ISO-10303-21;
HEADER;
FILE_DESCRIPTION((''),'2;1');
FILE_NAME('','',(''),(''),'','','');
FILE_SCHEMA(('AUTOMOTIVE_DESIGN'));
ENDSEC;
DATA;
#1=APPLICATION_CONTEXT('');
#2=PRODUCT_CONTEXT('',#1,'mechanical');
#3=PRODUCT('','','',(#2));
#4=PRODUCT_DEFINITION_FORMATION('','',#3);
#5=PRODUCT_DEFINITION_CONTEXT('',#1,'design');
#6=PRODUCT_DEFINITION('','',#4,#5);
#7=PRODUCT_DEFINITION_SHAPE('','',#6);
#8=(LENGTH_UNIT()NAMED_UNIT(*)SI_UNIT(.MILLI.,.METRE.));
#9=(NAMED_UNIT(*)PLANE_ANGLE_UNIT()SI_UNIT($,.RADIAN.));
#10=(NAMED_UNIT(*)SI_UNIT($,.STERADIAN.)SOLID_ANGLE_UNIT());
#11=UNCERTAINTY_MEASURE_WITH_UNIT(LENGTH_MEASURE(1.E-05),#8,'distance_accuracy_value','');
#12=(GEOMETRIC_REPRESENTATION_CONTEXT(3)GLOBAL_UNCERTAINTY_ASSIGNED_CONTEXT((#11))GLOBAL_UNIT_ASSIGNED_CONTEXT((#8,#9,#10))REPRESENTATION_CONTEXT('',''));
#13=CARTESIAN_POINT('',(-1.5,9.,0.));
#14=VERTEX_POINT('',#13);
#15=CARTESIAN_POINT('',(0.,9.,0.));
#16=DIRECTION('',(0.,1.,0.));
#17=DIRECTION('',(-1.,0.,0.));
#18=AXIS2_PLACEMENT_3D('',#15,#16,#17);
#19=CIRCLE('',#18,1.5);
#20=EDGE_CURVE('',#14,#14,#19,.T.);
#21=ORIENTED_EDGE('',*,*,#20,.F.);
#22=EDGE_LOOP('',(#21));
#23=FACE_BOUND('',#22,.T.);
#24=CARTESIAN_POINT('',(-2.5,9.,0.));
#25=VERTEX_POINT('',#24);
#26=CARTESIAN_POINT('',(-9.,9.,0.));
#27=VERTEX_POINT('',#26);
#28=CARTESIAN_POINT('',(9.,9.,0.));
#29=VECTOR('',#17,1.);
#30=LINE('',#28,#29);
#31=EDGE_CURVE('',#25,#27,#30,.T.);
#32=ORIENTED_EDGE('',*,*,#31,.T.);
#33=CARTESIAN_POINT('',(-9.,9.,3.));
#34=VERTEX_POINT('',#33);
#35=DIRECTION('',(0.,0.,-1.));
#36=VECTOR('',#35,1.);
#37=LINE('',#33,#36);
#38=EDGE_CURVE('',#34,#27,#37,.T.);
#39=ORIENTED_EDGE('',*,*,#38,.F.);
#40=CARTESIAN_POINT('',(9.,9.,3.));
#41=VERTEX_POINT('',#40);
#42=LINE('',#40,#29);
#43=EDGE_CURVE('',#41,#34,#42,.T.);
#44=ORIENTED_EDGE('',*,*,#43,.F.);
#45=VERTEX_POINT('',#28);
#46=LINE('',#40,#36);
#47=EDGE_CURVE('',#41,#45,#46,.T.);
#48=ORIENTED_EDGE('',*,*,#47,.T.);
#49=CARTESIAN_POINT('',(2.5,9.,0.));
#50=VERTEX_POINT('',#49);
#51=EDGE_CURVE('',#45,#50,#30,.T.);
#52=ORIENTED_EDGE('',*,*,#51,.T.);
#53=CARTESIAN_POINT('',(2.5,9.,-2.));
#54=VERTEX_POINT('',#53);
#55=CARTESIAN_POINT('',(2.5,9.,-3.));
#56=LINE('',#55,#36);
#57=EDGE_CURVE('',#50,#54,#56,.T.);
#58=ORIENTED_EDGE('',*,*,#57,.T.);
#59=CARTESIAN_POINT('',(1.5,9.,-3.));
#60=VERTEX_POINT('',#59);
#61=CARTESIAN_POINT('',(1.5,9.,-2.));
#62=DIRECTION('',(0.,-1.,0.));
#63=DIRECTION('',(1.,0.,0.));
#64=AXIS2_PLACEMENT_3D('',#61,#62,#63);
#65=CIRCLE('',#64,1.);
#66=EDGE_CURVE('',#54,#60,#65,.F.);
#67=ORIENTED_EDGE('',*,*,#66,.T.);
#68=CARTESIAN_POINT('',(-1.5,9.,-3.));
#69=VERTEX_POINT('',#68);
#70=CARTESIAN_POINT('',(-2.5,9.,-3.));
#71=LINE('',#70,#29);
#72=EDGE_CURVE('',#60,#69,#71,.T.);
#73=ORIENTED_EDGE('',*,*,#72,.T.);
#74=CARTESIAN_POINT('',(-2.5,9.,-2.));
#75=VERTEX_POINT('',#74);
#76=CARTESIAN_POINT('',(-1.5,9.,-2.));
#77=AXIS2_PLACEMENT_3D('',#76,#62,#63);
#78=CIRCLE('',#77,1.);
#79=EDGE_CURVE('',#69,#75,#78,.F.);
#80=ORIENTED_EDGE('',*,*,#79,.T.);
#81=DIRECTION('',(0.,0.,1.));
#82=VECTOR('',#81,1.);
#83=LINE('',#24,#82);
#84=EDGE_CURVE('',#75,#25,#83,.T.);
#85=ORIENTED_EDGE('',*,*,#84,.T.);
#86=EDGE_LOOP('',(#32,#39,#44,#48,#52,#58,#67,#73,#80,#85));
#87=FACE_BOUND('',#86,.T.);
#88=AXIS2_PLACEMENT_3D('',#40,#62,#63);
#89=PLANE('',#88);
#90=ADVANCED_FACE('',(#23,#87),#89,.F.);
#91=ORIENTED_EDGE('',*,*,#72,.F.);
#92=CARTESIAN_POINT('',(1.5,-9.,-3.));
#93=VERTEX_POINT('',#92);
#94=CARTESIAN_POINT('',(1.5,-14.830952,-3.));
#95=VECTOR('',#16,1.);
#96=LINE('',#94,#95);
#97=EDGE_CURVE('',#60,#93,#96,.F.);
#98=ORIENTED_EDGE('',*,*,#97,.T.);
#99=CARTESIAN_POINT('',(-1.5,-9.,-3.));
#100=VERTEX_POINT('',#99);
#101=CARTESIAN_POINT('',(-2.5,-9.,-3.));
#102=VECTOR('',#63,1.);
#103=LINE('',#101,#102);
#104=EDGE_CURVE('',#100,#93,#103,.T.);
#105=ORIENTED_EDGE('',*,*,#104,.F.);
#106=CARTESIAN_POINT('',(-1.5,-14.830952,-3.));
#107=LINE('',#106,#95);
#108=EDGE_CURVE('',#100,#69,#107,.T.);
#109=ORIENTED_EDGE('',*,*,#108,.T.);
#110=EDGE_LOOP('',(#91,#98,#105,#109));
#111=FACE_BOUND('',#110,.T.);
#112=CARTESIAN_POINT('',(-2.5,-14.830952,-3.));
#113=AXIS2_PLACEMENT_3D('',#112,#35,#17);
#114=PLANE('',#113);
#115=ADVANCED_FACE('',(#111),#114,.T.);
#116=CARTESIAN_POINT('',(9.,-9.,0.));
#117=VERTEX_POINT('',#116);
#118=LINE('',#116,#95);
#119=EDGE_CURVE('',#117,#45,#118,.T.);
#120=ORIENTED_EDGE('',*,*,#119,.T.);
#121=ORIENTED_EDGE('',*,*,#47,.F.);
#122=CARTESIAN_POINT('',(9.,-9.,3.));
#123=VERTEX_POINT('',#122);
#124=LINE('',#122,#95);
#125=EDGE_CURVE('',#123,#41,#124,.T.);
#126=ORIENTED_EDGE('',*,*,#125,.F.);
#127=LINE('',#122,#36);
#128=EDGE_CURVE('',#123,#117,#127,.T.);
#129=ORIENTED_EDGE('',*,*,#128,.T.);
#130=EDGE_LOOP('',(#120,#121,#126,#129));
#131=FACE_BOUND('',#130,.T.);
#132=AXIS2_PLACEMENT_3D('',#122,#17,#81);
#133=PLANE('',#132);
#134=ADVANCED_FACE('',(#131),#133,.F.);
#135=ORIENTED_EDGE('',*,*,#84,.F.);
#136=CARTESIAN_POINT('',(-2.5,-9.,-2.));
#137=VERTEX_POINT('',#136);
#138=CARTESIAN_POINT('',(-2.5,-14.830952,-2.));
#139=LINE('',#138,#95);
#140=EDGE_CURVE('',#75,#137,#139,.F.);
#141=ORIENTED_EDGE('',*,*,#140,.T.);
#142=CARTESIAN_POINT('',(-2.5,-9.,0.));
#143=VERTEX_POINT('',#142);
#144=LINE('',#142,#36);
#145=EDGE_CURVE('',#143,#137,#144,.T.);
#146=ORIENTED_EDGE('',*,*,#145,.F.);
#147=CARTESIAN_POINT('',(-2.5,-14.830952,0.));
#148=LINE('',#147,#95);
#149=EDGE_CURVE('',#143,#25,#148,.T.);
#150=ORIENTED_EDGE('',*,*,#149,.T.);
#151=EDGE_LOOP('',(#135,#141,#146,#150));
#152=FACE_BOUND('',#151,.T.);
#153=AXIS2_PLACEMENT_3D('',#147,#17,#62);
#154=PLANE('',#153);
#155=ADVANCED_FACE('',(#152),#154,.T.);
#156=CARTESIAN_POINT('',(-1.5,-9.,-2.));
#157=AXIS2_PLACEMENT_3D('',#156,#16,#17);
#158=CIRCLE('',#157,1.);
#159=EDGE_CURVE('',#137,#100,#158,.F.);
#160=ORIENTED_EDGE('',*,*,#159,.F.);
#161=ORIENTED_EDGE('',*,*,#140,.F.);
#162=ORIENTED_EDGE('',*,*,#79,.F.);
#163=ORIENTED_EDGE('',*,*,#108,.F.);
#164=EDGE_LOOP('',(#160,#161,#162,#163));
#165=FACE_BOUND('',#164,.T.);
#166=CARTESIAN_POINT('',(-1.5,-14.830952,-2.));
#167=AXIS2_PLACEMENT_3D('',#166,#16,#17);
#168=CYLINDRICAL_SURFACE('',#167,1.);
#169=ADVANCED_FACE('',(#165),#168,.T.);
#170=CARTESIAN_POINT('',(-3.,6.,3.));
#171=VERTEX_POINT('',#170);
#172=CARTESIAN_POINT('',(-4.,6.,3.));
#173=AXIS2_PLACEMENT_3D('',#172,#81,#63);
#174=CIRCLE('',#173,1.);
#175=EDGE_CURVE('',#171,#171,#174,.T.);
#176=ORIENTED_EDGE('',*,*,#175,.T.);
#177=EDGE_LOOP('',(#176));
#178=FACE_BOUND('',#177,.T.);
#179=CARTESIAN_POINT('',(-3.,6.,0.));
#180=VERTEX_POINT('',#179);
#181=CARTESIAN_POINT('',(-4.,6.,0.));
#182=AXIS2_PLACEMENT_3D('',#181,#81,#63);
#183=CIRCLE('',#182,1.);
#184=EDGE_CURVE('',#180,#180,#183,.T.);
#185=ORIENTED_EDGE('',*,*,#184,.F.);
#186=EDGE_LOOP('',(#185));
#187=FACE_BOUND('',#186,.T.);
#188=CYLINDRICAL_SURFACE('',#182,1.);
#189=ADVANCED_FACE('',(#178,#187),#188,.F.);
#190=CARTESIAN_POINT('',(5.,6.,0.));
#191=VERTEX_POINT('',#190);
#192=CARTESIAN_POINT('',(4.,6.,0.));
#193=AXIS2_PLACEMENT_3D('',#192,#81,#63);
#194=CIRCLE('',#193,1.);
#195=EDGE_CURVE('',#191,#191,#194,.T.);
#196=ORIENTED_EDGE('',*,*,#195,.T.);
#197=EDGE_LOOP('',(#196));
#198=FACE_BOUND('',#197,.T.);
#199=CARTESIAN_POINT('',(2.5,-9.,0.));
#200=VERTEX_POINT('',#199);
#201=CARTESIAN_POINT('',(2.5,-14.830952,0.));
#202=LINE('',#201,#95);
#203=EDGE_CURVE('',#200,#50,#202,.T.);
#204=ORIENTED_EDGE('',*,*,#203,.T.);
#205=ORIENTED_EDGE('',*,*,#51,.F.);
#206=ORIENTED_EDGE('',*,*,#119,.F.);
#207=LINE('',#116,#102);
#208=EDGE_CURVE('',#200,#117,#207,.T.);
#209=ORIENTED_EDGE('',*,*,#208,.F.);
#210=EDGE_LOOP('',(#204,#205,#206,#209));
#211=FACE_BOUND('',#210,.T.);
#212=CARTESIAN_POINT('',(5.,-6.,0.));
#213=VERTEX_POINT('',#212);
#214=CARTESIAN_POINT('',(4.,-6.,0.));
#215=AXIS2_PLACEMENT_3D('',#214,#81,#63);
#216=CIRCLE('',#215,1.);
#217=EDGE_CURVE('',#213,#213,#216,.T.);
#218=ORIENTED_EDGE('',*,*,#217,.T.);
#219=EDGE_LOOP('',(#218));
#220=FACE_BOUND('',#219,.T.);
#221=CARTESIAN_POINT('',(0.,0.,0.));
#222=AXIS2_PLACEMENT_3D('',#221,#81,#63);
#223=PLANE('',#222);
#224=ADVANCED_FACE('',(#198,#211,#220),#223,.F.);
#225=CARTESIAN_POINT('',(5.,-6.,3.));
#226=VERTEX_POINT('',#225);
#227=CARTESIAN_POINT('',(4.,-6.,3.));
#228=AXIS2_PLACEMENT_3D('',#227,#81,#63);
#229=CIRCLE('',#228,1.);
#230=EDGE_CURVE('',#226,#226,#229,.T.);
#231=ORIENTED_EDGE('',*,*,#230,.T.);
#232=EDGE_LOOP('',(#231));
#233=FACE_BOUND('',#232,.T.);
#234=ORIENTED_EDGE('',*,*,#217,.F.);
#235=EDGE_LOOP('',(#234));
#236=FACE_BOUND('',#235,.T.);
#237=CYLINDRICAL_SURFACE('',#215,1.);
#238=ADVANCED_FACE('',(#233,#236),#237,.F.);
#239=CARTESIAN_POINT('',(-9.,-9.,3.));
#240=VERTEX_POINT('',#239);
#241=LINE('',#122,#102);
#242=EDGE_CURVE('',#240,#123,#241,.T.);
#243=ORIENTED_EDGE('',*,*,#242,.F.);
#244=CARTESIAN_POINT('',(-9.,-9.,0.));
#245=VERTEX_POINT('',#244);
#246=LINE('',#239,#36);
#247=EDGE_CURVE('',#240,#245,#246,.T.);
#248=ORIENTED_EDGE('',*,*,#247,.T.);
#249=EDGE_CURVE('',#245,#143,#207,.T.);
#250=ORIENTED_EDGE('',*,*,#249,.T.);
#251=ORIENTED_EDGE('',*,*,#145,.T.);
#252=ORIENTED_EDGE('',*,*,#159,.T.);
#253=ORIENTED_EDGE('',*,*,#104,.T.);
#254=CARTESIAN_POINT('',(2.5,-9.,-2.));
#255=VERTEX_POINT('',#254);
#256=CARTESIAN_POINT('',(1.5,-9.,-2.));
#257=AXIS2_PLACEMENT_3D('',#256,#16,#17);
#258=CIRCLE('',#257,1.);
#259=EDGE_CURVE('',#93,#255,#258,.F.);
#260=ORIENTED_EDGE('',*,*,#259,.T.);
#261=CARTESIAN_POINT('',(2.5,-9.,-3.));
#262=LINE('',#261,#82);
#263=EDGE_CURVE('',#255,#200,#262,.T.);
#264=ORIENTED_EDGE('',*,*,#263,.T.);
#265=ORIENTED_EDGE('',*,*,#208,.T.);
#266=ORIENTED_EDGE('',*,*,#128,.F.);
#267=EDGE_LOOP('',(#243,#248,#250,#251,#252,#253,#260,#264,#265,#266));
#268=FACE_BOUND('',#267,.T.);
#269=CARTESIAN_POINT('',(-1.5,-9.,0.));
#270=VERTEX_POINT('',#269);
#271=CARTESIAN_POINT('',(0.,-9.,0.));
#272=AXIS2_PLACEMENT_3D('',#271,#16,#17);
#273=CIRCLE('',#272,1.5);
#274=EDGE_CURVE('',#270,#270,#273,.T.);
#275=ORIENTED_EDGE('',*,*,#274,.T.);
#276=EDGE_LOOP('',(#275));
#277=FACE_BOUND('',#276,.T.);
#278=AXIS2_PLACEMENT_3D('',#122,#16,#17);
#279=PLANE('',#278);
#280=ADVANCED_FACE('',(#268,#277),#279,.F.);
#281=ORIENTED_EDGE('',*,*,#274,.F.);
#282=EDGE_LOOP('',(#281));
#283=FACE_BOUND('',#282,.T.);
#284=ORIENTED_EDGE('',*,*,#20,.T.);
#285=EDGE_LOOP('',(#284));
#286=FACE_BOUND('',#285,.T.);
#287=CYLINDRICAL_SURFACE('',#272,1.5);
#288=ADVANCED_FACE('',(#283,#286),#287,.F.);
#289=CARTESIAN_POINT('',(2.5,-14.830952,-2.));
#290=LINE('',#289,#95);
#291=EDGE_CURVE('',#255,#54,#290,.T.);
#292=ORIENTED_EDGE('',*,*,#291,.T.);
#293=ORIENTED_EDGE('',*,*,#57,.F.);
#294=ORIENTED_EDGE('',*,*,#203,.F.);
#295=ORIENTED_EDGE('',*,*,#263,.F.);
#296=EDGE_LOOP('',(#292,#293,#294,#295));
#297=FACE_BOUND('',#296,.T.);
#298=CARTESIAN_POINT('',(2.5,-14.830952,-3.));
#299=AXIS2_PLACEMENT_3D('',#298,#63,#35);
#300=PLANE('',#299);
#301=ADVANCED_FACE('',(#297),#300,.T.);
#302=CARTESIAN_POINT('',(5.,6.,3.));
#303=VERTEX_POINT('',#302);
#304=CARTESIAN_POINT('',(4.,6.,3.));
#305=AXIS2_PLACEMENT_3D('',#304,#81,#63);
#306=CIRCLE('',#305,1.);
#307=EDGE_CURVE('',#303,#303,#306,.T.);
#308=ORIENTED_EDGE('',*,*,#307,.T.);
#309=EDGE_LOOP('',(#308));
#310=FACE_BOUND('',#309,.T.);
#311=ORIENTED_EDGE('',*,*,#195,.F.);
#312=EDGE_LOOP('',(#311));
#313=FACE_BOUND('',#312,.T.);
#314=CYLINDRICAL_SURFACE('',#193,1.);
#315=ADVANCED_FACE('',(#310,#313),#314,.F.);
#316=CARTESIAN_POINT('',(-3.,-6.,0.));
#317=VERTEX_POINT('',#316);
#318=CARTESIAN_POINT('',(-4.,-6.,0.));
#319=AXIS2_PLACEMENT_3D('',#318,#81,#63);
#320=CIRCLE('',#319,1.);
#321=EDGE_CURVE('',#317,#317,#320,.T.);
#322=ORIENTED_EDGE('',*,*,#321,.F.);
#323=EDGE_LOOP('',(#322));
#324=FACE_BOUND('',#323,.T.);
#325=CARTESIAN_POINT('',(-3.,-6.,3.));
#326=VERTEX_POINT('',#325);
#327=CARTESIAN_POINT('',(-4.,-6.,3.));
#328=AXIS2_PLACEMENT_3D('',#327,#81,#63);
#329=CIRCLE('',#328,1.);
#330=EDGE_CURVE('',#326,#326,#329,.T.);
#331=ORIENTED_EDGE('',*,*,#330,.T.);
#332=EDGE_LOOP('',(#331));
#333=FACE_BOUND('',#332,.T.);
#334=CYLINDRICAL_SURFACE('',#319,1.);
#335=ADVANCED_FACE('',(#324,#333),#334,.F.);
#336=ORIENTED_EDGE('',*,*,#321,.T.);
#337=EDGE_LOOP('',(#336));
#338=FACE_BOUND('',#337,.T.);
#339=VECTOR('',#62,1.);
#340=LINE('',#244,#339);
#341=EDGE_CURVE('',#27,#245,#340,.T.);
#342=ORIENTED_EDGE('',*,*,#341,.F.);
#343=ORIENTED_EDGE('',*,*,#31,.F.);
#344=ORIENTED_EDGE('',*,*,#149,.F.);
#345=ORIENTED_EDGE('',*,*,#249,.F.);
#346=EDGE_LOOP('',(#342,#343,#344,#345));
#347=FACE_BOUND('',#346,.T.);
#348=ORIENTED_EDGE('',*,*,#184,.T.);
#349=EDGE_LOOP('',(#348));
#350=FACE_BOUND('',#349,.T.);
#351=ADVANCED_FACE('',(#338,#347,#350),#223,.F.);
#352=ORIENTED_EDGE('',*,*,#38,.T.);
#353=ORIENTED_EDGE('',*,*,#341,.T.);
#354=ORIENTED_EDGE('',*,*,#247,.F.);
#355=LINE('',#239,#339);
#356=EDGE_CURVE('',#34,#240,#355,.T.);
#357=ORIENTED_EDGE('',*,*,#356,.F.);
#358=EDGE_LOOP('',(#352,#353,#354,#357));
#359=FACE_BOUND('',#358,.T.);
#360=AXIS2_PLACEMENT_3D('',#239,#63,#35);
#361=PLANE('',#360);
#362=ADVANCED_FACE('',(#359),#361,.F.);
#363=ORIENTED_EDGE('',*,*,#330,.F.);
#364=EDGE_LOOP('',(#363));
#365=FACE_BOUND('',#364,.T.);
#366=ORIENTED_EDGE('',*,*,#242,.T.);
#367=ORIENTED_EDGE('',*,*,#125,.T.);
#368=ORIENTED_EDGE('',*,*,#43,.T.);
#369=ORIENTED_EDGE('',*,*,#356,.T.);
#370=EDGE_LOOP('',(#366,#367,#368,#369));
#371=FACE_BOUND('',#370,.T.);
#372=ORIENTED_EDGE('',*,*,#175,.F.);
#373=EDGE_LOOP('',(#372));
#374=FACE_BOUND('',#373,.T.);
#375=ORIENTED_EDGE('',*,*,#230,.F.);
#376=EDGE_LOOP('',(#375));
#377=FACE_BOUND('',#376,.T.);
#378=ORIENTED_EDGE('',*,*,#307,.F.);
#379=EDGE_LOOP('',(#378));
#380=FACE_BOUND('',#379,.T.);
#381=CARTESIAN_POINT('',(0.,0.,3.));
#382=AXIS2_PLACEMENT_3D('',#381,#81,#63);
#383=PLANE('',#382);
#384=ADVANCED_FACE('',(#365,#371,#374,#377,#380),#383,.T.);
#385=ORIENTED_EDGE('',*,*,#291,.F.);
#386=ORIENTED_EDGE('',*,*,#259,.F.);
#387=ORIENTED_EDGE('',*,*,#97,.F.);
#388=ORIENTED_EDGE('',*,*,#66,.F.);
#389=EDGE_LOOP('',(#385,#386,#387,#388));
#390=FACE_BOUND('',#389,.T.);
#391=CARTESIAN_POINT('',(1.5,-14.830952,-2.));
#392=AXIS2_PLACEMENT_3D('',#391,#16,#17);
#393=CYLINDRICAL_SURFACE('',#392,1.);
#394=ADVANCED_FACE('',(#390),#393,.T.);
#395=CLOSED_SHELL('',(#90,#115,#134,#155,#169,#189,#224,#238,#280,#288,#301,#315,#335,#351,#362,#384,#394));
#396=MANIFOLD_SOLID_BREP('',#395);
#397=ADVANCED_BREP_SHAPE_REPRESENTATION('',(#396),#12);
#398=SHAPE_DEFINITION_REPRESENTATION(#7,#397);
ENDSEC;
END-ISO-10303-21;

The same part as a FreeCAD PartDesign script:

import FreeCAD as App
import Part
import Sketcher
from FreeCAD import Vector


def edges_at(feature, points):
    """Names of the edges that pass closest to the given points."""
    edges = feature.Shape.Edges
    near = lambda p: min(range(len(edges)), key=lambda i: edges[i].distToShape(Part.Vertex(*p))[0])
    return sorted({f"Edge{near(p) + 1}" for p in points})


def add_polygon(sketch, points):
    """Adds a closed chain of lines whose ends are joined by coincident constraints."""
    first, n = sketch.GeometryCount, len(points)
    for a, b in zip(points, points[1:] + points[:1]):
        sketch.addGeometry(Part.LineSegment(App.Vector(*a, 0), App.Vector(*b, 0)), False)
    for i in range(n):
        sketch.addConstraint(Sketcher.Constraint("Coincident", first + i, 2, first + (i + 1) % n, 1))

doc = App.newDocument("Part")
body = doc.addObject("PartDesign::Body", "Body")

# Sketch on XY plane
sketch1 = doc.addObject("Sketcher::SketchObject", "Sketch")
body.addObject(sketch1)
sketch1.AttachmentSupport = (doc.XY_Plane, [""])
sketch1.MapMode = "FlatFace"
add_polygon(sketch1, [(-9, 9), (-9, -9), (9, -9), (9, 9)])  # lines 0-3
sketch1.addConstraint([
    Sketcher.Constraint("Vertical", 0),
    Sketcher.Constraint("Horizontal", 1),
    Sketcher.Constraint("Vertical", 2),
    Sketcher.Constraint("Horizontal", 3),
    Sketcher.Constraint("Symmetric", 0, 2, 2, 2, -1, 1),
    Sketcher.Constraint("Equal", 3, 0),
    Sketcher.Constraint("DistanceX", 1, 1, 1, 2, 18.0),
])
pad1 = doc.addObject("PartDesign::Pad", "Pad")
body.addObject(pad1)
pad1.Profile = sketch1
pad1.Length = 3

# Sketch on XY plane
sketch2 = doc.addObject("Sketcher::SketchObject", "Sketch001")
body.addObject(sketch2)
sketch2.AttachmentSupport = (doc.XY_Plane, [""])
sketch2.MapMode = "FlatFace"
sketch2.AttachmentOffset = App.Placement(Vector(0, 0, 3), App.Rotation())
sketch2.addGeometry([
    Part.Circle(Vector(-4, -6, 0), Vector(0, 0, 1), 1),
    Part.Circle(Vector(4, -6, 0), Vector(0, 0, 1), 1),
    Part.Circle(Vector(4, 6, 0), Vector(0, 0, 1), 1),
    Part.Circle(Vector(-4, 6, 0), Vector(0, 0, 1), 1),
], False)
sketch2.addConstraint([
    Sketcher.Constraint("Equal", 0, 1),
    Sketcher.Constraint("Equal", 1, 2),
    Sketcher.Constraint("Equal", 2, 3),
    Sketcher.Constraint("Symmetric", 0, 3, 2, 3, -1, 1),
    Sketcher.Constraint("Symmetric", 1, 3, 3, 3, -1, 1),
    Sketcher.Constraint("Symmetric", 0, 3, 1, 3, -2),
    Sketcher.Constraint("Diameter", 0, 2.0),
    Sketcher.Constraint("DistanceX", 0, 3, -1, 1, 4.0),
    Sketcher.Constraint("DistanceY", 0, 3, -1, 1, 6.0),
])
pocket1 = doc.addObject("PartDesign::Pocket", "Pocket")
body.addObject(pocket1)
pocket1.Profile = sketch2
pocket1.Type = "ThroughAll"

# Sketch on XZ plane
sketch3 = doc.addObject("Sketcher::SketchObject", "Sketch002")
body.addObject(sketch3)
sketch3.AttachmentSupport = (doc.XZ_Plane, [""])
sketch3.MapMode = "FlatFace"
sketch3.AttachmentOffset = App.Placement(Vector(0, 0, -9), App.Rotation())
add_polygon(sketch3, [(-2.5, -3), (-2.5, 0), (2.5, 0), (2.5, -3)])  # lines 0-3
sketch3.addConstraint([
    Sketcher.Constraint("Vertical", 0),
    Sketcher.Constraint("Horizontal", 1),
    Sketcher.Constraint("Vertical", 2),
    Sketcher.Constraint("Horizontal", 3),
    Sketcher.Constraint("Symmetric", 0, 2, 1, 2, -1, 1),
    Sketcher.Constraint("DistanceX", 1, 1, 1, 2, 5.0),
    Sketcher.Constraint("DistanceY", 0, 1, 0, 2, 3.0),
])
pad2 = doc.addObject("PartDesign::Pad", "Pad001")
body.addObject(pad2)
pad2.Profile = sketch3
pad2.Length = 18

# Sketch on XZ plane
sketch4 = doc.addObject("Sketcher::SketchObject", "Sketch003")
body.addObject(sketch4)
sketch4.AttachmentSupport = (doc.XZ_Plane, [""])
sketch4.MapMode = "FlatFace"
sketch4.AttachmentOffset = App.Placement(Vector(0, 0, -9), App.Rotation())
sketch4.addGeometry(Part.Circle(Vector(0, 0, 0), Vector(0, 0, 1), 1.5), False)
sketch4.addConstraint([
    Sketcher.Constraint("Coincident", 0, 3, -1, 1),
    Sketcher.Constraint("Diameter", 0, 3.0),
])
pocket2 = doc.addObject("PartDesign::Pocket", "Pocket001")
body.addObject(pocket2)
pocket2.Profile = sketch4
pocket2.Type = "ThroughAll"
pocket2.Reversed = True
doc.recompute()

fillet = doc.addObject("PartDesign::Fillet", "Fillet")
body.addObject(fillet)
fillet.Base = (pocket2, edges_at(pocket2, [(-2.5, 0, -3), (2.5, 0, -3)]))
fillet.Radius = 1

doc.recompute()
